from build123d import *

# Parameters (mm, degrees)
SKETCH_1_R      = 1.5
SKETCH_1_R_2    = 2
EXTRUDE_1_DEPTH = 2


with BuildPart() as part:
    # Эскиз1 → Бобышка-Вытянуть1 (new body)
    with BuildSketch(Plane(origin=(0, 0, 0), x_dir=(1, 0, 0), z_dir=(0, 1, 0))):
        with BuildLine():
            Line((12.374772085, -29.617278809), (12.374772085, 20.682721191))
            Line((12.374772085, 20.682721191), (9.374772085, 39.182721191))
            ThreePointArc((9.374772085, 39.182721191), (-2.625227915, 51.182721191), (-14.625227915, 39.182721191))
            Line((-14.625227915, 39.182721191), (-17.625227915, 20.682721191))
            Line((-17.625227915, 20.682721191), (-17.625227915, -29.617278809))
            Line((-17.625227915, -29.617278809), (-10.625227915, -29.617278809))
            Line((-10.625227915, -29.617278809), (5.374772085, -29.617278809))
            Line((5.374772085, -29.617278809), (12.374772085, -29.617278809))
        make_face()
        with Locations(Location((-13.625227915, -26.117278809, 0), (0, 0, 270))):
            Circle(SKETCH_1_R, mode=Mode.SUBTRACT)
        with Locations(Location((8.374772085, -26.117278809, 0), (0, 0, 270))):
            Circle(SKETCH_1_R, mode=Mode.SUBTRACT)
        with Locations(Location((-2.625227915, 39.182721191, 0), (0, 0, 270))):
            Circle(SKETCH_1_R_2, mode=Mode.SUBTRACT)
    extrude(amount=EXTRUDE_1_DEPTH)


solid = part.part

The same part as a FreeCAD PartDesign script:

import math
import FreeCAD as App
import Part
import Sketcher
from FreeCAD import Vector
Q = App.Units.Quantity

doc = App.newDocument("Part")
body = doc.addObject("PartDesign::Body", "Body")

# Sketch on XZ plane
sketch1 = body.newObject("Sketcher::SketchObject", "Sketch")
sketch1.AttachmentSupport = (doc.getObject("XZ_Plane"), [""])
sketch1.MapMode = "FlatFace"
sketch1.addGeometry([
    Part.LineSegment(Vector(12.4, 29.6, 0), Vector(12.4, -20.7, 0)),  # 0
    Part.LineSegment(Vector(12.4, -20.7, 0), Vector(9.4, -39.2, 0)),  # 1
    Part.ArcOfCircle(Part.Circle(Vector(-2.6, -39.2, 0), Vector(0, 0, 1), 12), math.radians(180), math.radians(360)),  # 2
    Part.LineSegment(Vector(-14.6, -39.2, 0), Vector(-17.6, -20.7, 0)),  # 3
    Part.LineSegment(Vector(-17.6, -20.7, 0), Vector(-17.6, 29.6, 0)),  # 4
    Part.LineSegment(Vector(-17.6, 29.6, 0), Vector(12.4, 29.6, 0)),  # 5
    Part.Circle(Vector(-13.6, 26.1, 0), Vector(0, 0, 1), 1.5),  # 6
    Part.Circle(Vector(8.4, 26.1, 0), Vector(0, 0, 1), 1.5),  # 7
    Part.Circle(Vector(-2.6, -39.2, 0), Vector(0, 0, 1), 2),  # 8
], False)
sketch1.addConstraint([
    Sketcher.Constraint("Coincident", 0, 2, 1, 1),
    Sketcher.Constraint("Coincident", 1, 2, 2, 2),
    Sketcher.Constraint("Coincident", 2, 1, 3, 1),
    Sketcher.Constraint("Coincident", 3, 2, 4, 1),
    Sketcher.Constraint("Coincident", 4, 2, 5, 1),
    Sketcher.Constraint("Coincident", 5, 2, 0, 1),
    Sketcher.Constraint("Vertical", 0),
    Sketcher.Constraint("Vertical", 4),
    Sketcher.Constraint("Horizontal", 5),
    Sketcher.Constraint("Coincident", 8, 3, 2, 3),
    Sketcher.Constraint("Equal", 6, 7),
    Sketcher.Constraint("Horizontal", 6, 3, 7, 3),
    Sketcher.Constraint("Horizontal", 8, 3, 1, 2),
    Sketcher.Constraint("Horizontal", 1, 2, 2, 1),
    Sketcher.Constraint("Horizontal", 0, 2, 3, 2),
    Sketcher.Constraint("Equal", 1, 3),
    Sketcher.Constraint("Diameter", 6, Q("3 mm")),
    Sketcher.Constraint("Diameter", 8, Q("4 mm")),
    Sketcher.Constraint("Radius", 2, Q("12 mm")),
    Sketcher.Constraint("DistanceX", 5, 1, 5, 2, Q("30 mm")),
    Sketcher.Constraint("DistanceY", 0, 2, 0, 1, Q("50.3 mm")),
    Sketcher.Constraint("DistanceX", 6, 3, 2, 3, Q("11 mm")),
    Sketcher.Constraint("DistanceX", 6, 3, 7, 3, Q("22 mm")),
    Sketcher.Constraint("DistanceY", 2, 3, 6, 3, Q("65.3 mm")),
    Sketcher.Constraint("DistanceY", 2, 3, 0, 2, Q("18.5 mm")),
    Sketcher.Constraint("DistanceY", 2, 3, -1, 1, Q("39.182721 mm")),
    Sketcher.Constraint("DistanceX", 2, 3, -1, 1, Q("2.625228 mm")),
])
pad1 = body.newObject("PartDesign::Pad", "Pad")
pad1.Profile = sketch1
pad1.Length = 2
pad1.Reversed = True

doc.recompute()
